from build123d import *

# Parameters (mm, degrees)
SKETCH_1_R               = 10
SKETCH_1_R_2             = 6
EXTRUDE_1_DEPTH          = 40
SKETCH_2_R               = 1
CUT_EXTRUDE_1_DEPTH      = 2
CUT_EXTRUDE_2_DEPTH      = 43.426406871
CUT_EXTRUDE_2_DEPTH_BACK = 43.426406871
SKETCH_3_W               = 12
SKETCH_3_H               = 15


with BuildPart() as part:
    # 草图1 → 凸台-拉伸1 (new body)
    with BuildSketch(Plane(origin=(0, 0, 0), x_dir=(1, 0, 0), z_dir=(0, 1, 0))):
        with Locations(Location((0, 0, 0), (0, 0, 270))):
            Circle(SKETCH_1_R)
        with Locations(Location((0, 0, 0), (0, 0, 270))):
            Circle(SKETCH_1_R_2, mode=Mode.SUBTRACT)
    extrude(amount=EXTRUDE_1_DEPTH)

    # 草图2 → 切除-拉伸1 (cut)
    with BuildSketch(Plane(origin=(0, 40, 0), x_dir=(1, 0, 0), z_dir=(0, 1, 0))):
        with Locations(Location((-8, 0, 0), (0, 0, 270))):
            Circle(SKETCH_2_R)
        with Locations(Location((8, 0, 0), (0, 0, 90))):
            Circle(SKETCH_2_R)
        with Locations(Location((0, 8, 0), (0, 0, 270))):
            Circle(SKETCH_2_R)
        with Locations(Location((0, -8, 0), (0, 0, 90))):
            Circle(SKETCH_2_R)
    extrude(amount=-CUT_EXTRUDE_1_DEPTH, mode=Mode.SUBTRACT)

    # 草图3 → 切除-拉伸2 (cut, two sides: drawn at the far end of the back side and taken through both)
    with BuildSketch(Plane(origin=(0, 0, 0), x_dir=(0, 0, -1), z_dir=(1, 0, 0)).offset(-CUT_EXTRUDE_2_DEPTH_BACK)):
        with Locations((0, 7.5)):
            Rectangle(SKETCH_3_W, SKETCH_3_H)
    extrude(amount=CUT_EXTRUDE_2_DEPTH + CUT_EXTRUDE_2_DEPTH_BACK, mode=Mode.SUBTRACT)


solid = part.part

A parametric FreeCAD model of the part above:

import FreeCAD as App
import Part
import Sketcher
from FreeCAD import Vector


def add_polygon(sketch, points):
    """Adds a closed chain of lines whose ends are joined by coincident constraints."""
    first, n = sketch.GeometryCount, len(points)
    for a, b in zip(points, points[1:] + points[:1]):
        sketch.addGeometry(Part.LineSegment(App.Vector(*a, 0), App.Vector(*b, 0)), False)
    for i in range(n):
        sketch.addConstraint(Sketcher.Constraint("Coincident", first + i, 2, first + (i + 1) % n, 1))

doc = App.newDocument("Part")
body = doc.addObject("PartDesign::Body", "Body")

# Sketch on XZ plane
sketch1 = doc.addObject("Sketcher::SketchObject", "Sketch")
body.addObject(sketch1)
sketch1.AttachmentSupport = (doc.XZ_Plane, [""])
sketch1.MapMode = "FlatFace"
sketch1.addGeometry([
    Part.Circle(Vector(0, 0, 0), Vector(0, 0, 1), 10),
    Part.Circle(Vector(0, 0, 0), Vector(0, 0, 1), 6),
], False)
sketch1.addConstraint([
    Sketcher.Constraint("Coincident", 0, 3, -1, 1),
    Sketcher.Constraint("Coincident", 1, 3, -1, 1),
    Sketcher.Constraint("Diameter", 0, 20.0),
    Sketcher.Constraint("Diameter", 1, 12.0),
])
pad1 = doc.addObject("PartDesign::Pad", "Pad")
body.addObject(pad1)
pad1.Profile = sketch1
pad1.Length = 40
pad1.Reversed = True

# Sketch on XZ plane
sketch2 = doc.addObject("Sketcher::SketchObject", "Sketch001")
body.addObject(sketch2)
sketch2.AttachmentSupport = (doc.XZ_Plane, [""])
sketch2.MapMode = "FlatFace"
sketch2.AttachmentOffset = App.Placement(Vector(0, 0, -40), App.Rotation())
sketch2.addGeometry([
    Part.Circle(Vector(-8, 0, 0), Vector(0, 0, 1), 1),
    Part.Circle(Vector(8, 0, 0), Vector(0, 0, 1), 1),
    Part.Circle(Vector(0, -8, 0), Vector(0, 0, 1), 1),
    Part.Circle(Vector(0, 8, 0), Vector(0, 0, 1), 1),
], False)
sketch2.addConstraint([
    Sketcher.Constraint("Equal", 0, 1),
    Sketcher.Constraint("Equal", 1, 2),
    Sketcher.Constraint("Equal", 2, 3),
    Sketcher.Constraint("Symmetric", 0, 3, 1, 3, -1, 1),
    Sketcher.Constraint("Symmetric", 2, 3, 3, 3, -1, 1),
    Sketcher.Constraint("PointOnObject", 0, 3, -1),
    Sketcher.Constraint("PointOnObject", 2, 3, -2),
    Sketcher.Constraint("Diameter", 0, 2.0),
    Sketcher.Constraint("DistanceX", 0, 3, -1, 1, 8.0),
    Sketcher.Constraint("DistanceY", 2, 3, -1, 1, 8.0),
])
pocket1 = doc.addObject("PartDesign::Pocket", "Pocket")
body.addObject(pocket1)
pocket1.Profile = sketch2
pocket1.Length = 2
pocket1.Reversed = True

# Sketch on YZ plane
sketch3 = doc.addObject("Sketcher::SketchObject", "Sketch002")
body.addObject(sketch3)
sketch3.AttachmentSupport = (doc.YZ_Plane, [""])
sketch3.MapMode = "FlatFace"
add_polygon(sketch3, [(15, 6), (0, 6), (0, -6), (15, -6)])  # lines 0-3
sketch3.addConstraint([
    Sketcher.Constraint("Horizontal", 0),
    Sketcher.Constraint("Vertical", 1),
    Sketcher.Constraint("Horizontal", 2),
    Sketcher.Constraint("Vertical", 3),
    Sketcher.Constraint("Symmetric", 0, 2, 1, 2, -1, 1),
    Sketcher.Constraint("DistanceX", 0, 2, 0, 1, 15.0),
    Sketcher.Constraint("DistanceY", 1, 2, 1, 1, 12.0),
])
pocket2 = doc.addObject("PartDesign::Pocket", "Pocket001")
body.addObject(pocket2)
pocket2.Profile = sketch3
pocket2.Type = "ThroughAll"
pocket2.Midplane = True

doc.recompute()
